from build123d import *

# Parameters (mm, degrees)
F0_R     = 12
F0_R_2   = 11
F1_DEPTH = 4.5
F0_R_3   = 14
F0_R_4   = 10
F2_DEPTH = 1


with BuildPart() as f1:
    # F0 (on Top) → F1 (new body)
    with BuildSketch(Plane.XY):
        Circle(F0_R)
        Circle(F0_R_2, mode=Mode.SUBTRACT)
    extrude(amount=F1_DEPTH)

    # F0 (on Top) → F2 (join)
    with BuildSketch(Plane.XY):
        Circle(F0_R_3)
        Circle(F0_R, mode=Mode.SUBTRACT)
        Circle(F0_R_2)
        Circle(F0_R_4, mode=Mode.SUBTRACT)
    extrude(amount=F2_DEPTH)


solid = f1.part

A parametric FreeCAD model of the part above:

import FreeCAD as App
import Part
import Sketcher

V = App.Vector

doc = App.newDocument("Part")
body = doc.addObject("PartDesign::Body", "Body")

# Sketch on XY plane
sketch1 = doc.addObject("Sketcher::SketchObject", "Sketch")
body.addObject(sketch1)
sketch1.AttachmentSupport = (doc.XY_Plane, [""])
sketch1.MapMode = "FlatFace"
sketch1.addGeometry([
    Part.Circle(V(0, 0, 0), V(0, 0, 1), 12),
    Part.Circle(V(0, 0, 0), V(0, 0, 1), 11),
], False)
sketch1.addConstraint([
    Sketcher.Constraint("Coincident", 0, 3, -1, 1),
    Sketcher.Constraint("Coincident", 1, 3, -1, 1),
    Sketcher.Constraint("Diameter", 0, 24.0),
    Sketcher.Constraint("Diameter", 1, 22.0),
])
pad1 = doc.addObject("PartDesign::Pad", "Pad")
body.addObject(pad1)
pad1.Profile = sketch1
pad1.Length = 4.5

# Sketch on XY plane
sketch2 = doc.addObject("Sketcher::SketchObject", "Sketch001")
body.addObject(sketch2)
sketch2.AttachmentSupport = (doc.XY_Plane, [""])
sketch2.MapMode = "FlatFace"
sketch2.addGeometry([
    Part.Circle(V(0, 0, 0), V(0, 0, 1), 14),
    Part.Circle(V(0, 0, 0), V(0, 0, 1), 12),
    Part.Circle(V(0, 0, 0), V(0, 0, 1), 11),
    Part.Circle(V(0, 0, 0), V(0, 0, 1), 10),
], False)
sketch2.addConstraint([
    Sketcher.Constraint("Coincident", 0, 3, -1, 1),
    Sketcher.Constraint("Coincident", 1, 3, -1, 1),
    Sketcher.Constraint("Coincident", 2, 3, -1, 1),
    Sketcher.Constraint("Coincident", 3, 3, -1, 1),
    Sketcher.Constraint("Diameter", 0, 28.0),
    Sketcher.Constraint("Diameter", 1, 24.0),
    Sketcher.Constraint("Diameter", 2, 22.0),
    Sketcher.Constraint("Diameter", 3, 20.0),
])
pad2 = doc.addObject("PartDesign::Pad", "Pad001")
body.addObject(pad2)
pad2.Profile = sketch2
pad2.Length = 1

doc.recompute()
